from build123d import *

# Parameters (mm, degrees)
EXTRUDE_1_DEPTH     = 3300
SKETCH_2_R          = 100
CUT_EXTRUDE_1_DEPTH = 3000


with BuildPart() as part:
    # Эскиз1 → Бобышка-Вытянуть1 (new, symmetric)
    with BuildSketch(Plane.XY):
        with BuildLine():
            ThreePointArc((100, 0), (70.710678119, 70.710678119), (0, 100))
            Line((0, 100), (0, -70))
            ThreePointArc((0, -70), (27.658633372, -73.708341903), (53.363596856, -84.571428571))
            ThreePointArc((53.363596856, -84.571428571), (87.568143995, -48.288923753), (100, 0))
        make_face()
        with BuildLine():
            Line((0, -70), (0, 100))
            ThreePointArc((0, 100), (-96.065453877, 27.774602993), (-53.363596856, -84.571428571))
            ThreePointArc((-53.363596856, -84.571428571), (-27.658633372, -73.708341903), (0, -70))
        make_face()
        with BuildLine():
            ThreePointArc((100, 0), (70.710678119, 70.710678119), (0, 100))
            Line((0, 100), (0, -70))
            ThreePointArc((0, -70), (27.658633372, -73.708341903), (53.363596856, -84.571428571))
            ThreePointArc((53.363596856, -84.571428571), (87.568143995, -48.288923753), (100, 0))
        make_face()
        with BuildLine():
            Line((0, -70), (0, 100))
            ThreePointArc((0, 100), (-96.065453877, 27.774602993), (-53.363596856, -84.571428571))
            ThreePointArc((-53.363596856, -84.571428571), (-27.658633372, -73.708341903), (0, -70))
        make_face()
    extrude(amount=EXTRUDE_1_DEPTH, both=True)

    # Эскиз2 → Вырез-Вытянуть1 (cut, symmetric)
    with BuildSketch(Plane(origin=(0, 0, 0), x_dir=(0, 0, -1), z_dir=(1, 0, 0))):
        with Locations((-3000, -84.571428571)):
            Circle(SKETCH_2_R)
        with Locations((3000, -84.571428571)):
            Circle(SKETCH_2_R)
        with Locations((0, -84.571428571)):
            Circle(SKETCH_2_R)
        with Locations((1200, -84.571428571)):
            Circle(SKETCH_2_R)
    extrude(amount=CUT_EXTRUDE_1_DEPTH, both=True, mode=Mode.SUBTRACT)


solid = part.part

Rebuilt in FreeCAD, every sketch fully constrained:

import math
import FreeCAD as App
import Part
import Sketcher
from FreeCAD import Vector
Q = App.Units.Quantity

doc = App.newDocument("Part")
body = doc.addObject("PartDesign::Body", "Body")

# Sketch on XY plane
sketch1 = doc.addObject("Sketcher::SketchObject", "Sketch")
body.addObject(sketch1)
sketch1.AttachmentSupport = (doc.XY_Plane, [""])
sketch1.MapMode = "FlatFace"
sketch1.addGeometry(Part.ArcOfCircle(Part.Circle(Vector(0, -175, 0), Vector(0, 0, 1), 105), math.radians(59.454348), math.radians(90)), False)
sketch1.addGeometry(Part.ArcOfCircle(Part.Circle(Vector(0, 0, 0), Vector(0, 0, 1), 100), math.radians(-57.748547), math.radians(0)), False)
sketch1.addGeometry(Part.ArcOfCircle(Part.Circle(Vector(0, 0, 0), Vector(0, 0, 1), 100), math.radians(0), math.radians(90)), False)
sketch1.addGeometry(Part.ArcOfCircle(Part.Circle(Vector(0, 0, 0), Vector(0, 0, 1), 100), math.radians(90), math.radians(237.748547)), False)
sketch1.addGeometry(Part.ArcOfCircle(Part.Circle(Vector(0, -175, 0), Vector(0, 0, 1), 105), math.radians(90), math.radians(120.545652)), False)
sketch1.addConstraint(Sketcher.Constraint("Coincident", 0, 1, 1, 1))
sketch1.addConstraint(Sketcher.Constraint("Tangent", 1, 2, 2, 1))
sketch1.addConstraint(Sketcher.Constraint("Tangent", 2, 2, 3, 1))
sketch1.addConstraint(Sketcher.Constraint("Coincident", 3, 2, 4, 2))
sketch1.addConstraint(Sketcher.Constraint("Tangent", 4, 1, 0, 2))
sketch1.addConstraint(Sketcher.Constraint("Coincident", 1, 3, -1, 1))
sketch1.addConstraint(Sketcher.Constraint("Coincident", 3, 3, -1, 1))
sketch1.addConstraint(Sketcher.Constraint("Equal", 0, 4))
sketch1.addConstraint(Sketcher.Constraint("PointOnObject", 0, 3, -2))
sketch1.addConstraint(Sketcher.Constraint("PointOnObject", 1, 2, -1))
sketch1.addConstraint(Sketcher.Constraint("PointOnObject", 2, 2, -2))
sketch1.addConstraint(Sketcher.Constraint("PointOnObject", 4, 1, -2))
sketch1.addConstraint(Sketcher.Constraint("Radius", 0, Q("105 mm")))
sketch1.addConstraint(Sketcher.Constraint("Radius", 1, Q("100 mm")))
sketch1.addConstraint(Sketcher.Constraint("DistanceY", 0, 3, -1, 1, Q("175 mm")))
pad1 = doc.addObject("PartDesign::Pad", "Pad")
body.addObject(pad1)
pad1.Profile = sketch1
pad1.Length = 6600
pad1.Midplane = True

# Sketch on YZ plane
sketch2 = doc.addObject("Sketcher::SketchObject", "Sketch001")
body.addObject(sketch2)
sketch2.AttachmentSupport = (doc.YZ_Plane, [""])
sketch2.MapMode = "FlatFace"
sketch2.addGeometry(Part.Circle(Vector(-84.571429, 3000, 0), Vector(0, 0, 1), 100), False)
sketch2.addGeometry(Part.Circle(Vector(-84.571429, -3000, 0), Vector(0, 0, 1), 100), False)
sketch2.addGeometry(Part.Circle(Vector(-84.571429, 0, 0), Vector(0, 0, 1), 100), False)
sketch2.addGeometry(Part.Circle(Vector(-84.571429, -1200, 0), Vector(0, 0, 1), 100), False)
sketch2.addConstraint(Sketcher.Constraint("Equal", 0, 1))
sketch2.addConstraint(Sketcher.Constraint("Equal", 1, 2))
sketch2.addConstraint(Sketcher.Constraint("Equal", 2, 3))
sketch2.addConstraint(Sketcher.Constraint("Symmetric", 0, 3, 1, 3, -1))
sketch2.addConstraint(Sketcher.Constraint("PointOnObject", 2, 3, -1))
sketch2.addConstraint(Sketcher.Constraint("Vertical", 1, 3, 2, 3))
sketch2.addConstraint(Sketcher.Constraint("Vertical", 2, 3, 3, 3))
sketch2.addConstraint(Sketcher.Constraint("Diameter", 0, Q("200 mm")))
sketch2.addConstraint(Sketcher.Constraint("DistanceY", -1, 1, 0, 3, Q("3000 mm")))
sketch2.addConstraint(Sketcher.Constraint("DistanceY", 3, 3, -1, 1, Q("1200 mm")))
sketch2.addConstraint(Sketcher.Constraint("DistanceX", 0, 3, -1, 1, Q("84.571429 mm")))
pocket1 = doc.addObject("PartDesign::Pocket", "Pocket")
body.addObject(pocket1)
pocket1.Profile = sketch2
pocket1.Length = 6000
pocket1.Midplane = True

doc.recompute()
